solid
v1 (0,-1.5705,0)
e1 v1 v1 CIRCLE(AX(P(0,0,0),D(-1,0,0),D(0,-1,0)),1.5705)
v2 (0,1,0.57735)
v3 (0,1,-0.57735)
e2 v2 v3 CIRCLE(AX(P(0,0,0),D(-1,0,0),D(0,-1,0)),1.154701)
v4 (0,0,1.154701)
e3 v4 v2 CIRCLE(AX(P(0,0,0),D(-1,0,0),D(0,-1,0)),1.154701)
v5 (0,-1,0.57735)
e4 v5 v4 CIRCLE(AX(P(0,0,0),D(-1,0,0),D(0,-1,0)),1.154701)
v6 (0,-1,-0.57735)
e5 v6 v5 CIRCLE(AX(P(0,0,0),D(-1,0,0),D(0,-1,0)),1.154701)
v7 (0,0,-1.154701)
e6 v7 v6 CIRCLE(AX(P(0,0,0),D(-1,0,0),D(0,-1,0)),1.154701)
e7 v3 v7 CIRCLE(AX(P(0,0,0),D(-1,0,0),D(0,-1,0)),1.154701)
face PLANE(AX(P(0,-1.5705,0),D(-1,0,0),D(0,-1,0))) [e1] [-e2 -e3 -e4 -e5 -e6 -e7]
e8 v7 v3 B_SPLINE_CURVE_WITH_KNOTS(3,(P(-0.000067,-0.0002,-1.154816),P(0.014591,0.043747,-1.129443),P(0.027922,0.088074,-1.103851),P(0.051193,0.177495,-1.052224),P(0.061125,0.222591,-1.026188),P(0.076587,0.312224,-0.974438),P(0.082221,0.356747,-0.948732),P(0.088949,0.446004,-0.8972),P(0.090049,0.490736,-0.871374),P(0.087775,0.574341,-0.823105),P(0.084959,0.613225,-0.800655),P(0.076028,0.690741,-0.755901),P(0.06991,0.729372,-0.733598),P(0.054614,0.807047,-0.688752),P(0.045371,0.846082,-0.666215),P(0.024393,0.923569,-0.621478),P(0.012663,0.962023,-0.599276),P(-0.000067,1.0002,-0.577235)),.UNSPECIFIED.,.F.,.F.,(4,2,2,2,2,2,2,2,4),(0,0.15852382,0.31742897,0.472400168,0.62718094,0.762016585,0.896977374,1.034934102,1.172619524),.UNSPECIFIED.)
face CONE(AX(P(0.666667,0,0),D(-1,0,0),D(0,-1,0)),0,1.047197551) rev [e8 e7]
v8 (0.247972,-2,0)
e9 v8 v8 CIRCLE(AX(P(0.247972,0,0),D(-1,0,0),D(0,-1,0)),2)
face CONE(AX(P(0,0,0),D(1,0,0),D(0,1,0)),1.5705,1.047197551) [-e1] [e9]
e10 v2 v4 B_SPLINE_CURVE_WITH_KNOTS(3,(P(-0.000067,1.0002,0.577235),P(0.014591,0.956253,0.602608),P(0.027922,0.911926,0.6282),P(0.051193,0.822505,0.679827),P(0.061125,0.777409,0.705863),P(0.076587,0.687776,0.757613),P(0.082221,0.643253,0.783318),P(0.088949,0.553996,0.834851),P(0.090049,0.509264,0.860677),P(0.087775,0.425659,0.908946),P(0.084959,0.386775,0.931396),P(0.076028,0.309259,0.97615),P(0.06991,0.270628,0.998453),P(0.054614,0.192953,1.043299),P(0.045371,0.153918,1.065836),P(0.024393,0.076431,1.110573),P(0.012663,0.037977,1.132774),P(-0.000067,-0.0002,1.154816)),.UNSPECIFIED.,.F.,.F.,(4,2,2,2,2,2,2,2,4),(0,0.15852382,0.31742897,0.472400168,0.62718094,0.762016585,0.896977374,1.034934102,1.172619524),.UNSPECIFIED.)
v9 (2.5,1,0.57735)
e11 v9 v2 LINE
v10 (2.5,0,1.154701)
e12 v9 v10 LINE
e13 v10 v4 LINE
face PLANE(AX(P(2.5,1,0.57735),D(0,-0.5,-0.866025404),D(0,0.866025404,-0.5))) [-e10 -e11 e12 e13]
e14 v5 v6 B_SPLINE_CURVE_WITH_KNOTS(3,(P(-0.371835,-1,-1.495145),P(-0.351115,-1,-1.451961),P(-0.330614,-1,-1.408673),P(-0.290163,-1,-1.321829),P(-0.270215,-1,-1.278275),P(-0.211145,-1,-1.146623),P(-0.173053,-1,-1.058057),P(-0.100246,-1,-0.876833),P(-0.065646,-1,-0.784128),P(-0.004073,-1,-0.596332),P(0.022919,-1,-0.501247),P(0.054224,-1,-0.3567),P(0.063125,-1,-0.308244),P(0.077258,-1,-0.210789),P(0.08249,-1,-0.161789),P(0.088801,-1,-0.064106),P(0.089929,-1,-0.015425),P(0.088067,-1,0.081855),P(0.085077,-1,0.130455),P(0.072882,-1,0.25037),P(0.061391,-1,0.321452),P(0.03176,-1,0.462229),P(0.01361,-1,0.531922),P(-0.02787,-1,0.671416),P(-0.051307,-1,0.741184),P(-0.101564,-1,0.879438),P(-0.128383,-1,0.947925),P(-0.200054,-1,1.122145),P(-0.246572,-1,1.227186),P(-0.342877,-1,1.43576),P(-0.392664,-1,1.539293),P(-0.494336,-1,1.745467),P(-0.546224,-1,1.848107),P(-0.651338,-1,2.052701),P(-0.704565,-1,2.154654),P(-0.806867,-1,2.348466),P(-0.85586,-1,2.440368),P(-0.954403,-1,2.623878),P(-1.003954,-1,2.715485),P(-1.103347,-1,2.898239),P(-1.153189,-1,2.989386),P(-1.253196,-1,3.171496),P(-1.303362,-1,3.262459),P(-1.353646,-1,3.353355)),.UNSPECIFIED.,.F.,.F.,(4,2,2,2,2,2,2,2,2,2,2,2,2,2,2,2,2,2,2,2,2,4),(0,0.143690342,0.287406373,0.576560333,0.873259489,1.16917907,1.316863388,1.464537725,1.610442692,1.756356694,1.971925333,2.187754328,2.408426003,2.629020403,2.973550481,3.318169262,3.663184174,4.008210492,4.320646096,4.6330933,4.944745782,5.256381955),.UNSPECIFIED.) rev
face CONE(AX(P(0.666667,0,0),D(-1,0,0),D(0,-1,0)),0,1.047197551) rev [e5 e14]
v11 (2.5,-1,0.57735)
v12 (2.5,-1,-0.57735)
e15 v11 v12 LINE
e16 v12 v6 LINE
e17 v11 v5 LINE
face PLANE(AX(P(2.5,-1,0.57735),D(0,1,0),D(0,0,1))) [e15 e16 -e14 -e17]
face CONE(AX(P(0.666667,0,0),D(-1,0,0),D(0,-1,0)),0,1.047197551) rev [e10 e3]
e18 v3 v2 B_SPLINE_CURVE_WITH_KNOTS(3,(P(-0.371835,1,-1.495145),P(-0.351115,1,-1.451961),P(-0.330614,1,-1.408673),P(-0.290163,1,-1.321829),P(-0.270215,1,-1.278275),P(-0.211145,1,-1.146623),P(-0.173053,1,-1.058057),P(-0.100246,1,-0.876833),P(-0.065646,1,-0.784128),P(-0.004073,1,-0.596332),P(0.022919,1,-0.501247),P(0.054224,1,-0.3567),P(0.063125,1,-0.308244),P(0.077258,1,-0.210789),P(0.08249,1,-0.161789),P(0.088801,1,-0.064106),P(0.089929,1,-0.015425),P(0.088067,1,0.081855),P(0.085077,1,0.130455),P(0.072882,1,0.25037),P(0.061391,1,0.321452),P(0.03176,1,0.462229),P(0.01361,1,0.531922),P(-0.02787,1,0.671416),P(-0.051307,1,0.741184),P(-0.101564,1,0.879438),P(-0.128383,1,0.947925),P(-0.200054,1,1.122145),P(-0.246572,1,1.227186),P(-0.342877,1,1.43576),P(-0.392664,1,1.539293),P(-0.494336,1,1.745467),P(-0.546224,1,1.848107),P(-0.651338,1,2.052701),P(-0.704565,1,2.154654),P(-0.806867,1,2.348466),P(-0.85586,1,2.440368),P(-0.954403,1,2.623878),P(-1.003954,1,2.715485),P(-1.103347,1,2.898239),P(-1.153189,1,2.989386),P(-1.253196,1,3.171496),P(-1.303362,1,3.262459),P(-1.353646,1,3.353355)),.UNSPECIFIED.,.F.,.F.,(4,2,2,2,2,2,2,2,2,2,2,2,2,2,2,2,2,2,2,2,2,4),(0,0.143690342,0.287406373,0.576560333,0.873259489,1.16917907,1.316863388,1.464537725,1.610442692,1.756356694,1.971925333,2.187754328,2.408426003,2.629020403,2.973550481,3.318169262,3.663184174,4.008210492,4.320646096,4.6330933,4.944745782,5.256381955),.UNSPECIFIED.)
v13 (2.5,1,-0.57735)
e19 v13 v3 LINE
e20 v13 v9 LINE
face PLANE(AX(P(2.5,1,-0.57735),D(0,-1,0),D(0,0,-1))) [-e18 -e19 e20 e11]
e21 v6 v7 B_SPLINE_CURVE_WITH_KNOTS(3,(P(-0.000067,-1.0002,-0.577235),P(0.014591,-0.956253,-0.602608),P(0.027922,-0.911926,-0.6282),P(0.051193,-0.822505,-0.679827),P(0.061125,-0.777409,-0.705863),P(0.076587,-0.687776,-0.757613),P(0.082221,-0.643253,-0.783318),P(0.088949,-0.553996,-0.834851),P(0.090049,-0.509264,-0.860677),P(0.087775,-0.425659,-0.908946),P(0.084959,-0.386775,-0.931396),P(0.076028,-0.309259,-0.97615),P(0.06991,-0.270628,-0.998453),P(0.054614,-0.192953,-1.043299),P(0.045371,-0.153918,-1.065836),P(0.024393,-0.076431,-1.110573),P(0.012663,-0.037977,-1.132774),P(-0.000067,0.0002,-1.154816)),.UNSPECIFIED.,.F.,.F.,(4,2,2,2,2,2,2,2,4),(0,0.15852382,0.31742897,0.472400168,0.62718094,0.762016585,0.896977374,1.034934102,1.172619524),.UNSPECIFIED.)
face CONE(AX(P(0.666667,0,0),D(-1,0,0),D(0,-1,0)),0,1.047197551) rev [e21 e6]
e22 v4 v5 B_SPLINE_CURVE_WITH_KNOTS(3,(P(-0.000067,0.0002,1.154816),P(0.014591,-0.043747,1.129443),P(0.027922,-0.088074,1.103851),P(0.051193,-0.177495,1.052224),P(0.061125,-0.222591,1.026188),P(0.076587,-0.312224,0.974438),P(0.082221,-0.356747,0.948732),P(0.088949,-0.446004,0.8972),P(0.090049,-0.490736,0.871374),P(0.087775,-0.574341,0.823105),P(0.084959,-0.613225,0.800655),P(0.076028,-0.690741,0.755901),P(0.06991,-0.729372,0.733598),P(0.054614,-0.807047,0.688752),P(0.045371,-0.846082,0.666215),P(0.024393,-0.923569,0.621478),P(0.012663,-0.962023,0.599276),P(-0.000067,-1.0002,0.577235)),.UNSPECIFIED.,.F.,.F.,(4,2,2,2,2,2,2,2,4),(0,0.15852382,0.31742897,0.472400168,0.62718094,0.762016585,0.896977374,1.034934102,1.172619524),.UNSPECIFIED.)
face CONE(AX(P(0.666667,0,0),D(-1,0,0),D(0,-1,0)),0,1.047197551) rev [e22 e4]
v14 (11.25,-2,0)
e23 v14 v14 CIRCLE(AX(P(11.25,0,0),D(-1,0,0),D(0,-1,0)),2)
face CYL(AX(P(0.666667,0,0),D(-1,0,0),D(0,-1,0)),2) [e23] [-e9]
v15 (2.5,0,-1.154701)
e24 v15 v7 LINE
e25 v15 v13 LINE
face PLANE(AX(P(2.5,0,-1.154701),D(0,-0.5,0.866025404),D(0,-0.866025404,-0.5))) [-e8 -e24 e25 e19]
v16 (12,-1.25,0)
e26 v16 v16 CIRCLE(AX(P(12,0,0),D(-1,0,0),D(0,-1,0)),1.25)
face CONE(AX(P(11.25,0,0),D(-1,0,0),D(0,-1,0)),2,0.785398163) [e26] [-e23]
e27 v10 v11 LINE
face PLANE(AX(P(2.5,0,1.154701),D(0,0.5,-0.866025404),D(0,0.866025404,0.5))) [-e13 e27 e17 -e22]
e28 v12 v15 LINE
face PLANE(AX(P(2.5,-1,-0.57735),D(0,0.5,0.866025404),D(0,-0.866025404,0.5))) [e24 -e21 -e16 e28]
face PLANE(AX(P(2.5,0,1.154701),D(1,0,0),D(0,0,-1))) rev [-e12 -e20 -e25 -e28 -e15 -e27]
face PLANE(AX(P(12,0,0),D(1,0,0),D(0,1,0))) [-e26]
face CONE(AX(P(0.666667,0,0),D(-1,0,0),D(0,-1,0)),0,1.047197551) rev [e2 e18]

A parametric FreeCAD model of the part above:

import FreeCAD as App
import Part
import Sketcher
from FreeCAD import Vector
Q = App.Units.Quantity


def add_polygon(sketch, points):
    """Adds a closed chain of lines whose ends are joined by coincident constraints."""
    first, n = sketch.GeometryCount, len(points)
    for a, b in zip(points, points[1:] + points[:1]):
        sketch.addGeometry(Part.LineSegment(App.Vector(*a, 0), App.Vector(*b, 0)), False)
    for i in range(n):
        sketch.addConstraint(Sketcher.Constraint("Coincident", first + i, 2, first + (i + 1) % n, 1))

doc = App.newDocument("Part")
body = doc.addObject("PartDesign::Body", "Body")

# Sketch on XY plane
sketch1 = doc.addObject("Sketcher::SketchObject", "Sketch")
body.addObject(sketch1)
sketch1.AttachmentSupport = (doc.XY_Plane, [""])
sketch1.MapMode = "FlatFace"
add_polygon(sketch1, [(12, -1.25), (12, 0), (0.666667, 0), (0, -1.154701), (0, -1.5705), (0.247972, -2), (11.25, -2)])  # lines 0-6
sketch1.addConstraint([
    Sketcher.Constraint("Vertical", 0),
    Sketcher.Constraint("Horizontal", 1),
    Sketcher.Constraint("Vertical", 3),
    Sketcher.Constraint("Horizontal", 5),
    Sketcher.Constraint("PointOnObject", 0, 2, -1),
    Sketcher.Constraint("PointOnObject", 2, 2, -2),
    Sketcher.Constraint("Angle", 2, Q("-120 deg")),
    Sketcher.Constraint("Angle", 4, Q("-60 deg")),
    Sketcher.Constraint("Angle", 6, Q("45 deg")),
    Sketcher.Constraint("DistanceX", -1, 1, 0, 2, 12.0),
    Sketcher.Constraint("DistanceY", 4, 2, -1, 1, 2.0),
    Sketcher.Constraint("DistanceY", 0, 1, 0, 2, 1.25),
    Sketcher.Constraint("DistanceY", 3, 2, 3, 1, 0.415799),
    Sketcher.Constraint("DistanceX", 5, 1, 5, 2, 11.002028),
])
revolution = doc.addObject("PartDesign::Revolution", "Revolution")
body.addObject(revolution)
revolution.Profile = sketch1
revolution.ReferenceAxis = (sketch1, ["H_Axis"])
revolution.Angle = 360

# Sketch on YZ plane
sketch2 = doc.addObject("Sketcher::SketchObject", "Sketch001")
body.addObject(sketch2)
sketch2.AttachmentSupport = (doc.YZ_Plane, [""])
sketch2.MapMode = "FlatFace"
add_polygon(sketch2, [(0, 1.154701), (-1, 0.57735), (-1, -0.57735), (0, -1.154701), (1, -0.57735), (1, 0.57735)])  # lines 0-5
sketch2.addConstraint([
    Sketcher.Constraint("Vertical", 1),
    Sketcher.Constraint("Vertical", 4),
    Sketcher.Constraint("Symmetric", 0, 2, 3, 2, -1, 1),
    Sketcher.Constraint("Symmetric", 2, 2, 5, 2, -1, 1),
    Sketcher.Constraint("PointOnObject", 2, 2, -2),
    Sketcher.Constraint("Parallel", 2, 5),
    Sketcher.Constraint("Horizontal", 1, 2, 3, 2),
    Sketcher.Constraint("Angle", 0, Q("-150 deg")),
    Sketcher.Constraint("DistanceX", 0, 2, -1, 1, 1.0),
    Sketcher.Constraint("DistanceY", 1, 2, 1, 1, 1.154701),
])
pocket1 = doc.addObject("PartDesign::Pocket", "Pocket")
body.addObject(pocket1)
pocket1.Profile = sketch2
pocket1.Length = 2.5
pocket1.Reversed = True

doc.recompute()
